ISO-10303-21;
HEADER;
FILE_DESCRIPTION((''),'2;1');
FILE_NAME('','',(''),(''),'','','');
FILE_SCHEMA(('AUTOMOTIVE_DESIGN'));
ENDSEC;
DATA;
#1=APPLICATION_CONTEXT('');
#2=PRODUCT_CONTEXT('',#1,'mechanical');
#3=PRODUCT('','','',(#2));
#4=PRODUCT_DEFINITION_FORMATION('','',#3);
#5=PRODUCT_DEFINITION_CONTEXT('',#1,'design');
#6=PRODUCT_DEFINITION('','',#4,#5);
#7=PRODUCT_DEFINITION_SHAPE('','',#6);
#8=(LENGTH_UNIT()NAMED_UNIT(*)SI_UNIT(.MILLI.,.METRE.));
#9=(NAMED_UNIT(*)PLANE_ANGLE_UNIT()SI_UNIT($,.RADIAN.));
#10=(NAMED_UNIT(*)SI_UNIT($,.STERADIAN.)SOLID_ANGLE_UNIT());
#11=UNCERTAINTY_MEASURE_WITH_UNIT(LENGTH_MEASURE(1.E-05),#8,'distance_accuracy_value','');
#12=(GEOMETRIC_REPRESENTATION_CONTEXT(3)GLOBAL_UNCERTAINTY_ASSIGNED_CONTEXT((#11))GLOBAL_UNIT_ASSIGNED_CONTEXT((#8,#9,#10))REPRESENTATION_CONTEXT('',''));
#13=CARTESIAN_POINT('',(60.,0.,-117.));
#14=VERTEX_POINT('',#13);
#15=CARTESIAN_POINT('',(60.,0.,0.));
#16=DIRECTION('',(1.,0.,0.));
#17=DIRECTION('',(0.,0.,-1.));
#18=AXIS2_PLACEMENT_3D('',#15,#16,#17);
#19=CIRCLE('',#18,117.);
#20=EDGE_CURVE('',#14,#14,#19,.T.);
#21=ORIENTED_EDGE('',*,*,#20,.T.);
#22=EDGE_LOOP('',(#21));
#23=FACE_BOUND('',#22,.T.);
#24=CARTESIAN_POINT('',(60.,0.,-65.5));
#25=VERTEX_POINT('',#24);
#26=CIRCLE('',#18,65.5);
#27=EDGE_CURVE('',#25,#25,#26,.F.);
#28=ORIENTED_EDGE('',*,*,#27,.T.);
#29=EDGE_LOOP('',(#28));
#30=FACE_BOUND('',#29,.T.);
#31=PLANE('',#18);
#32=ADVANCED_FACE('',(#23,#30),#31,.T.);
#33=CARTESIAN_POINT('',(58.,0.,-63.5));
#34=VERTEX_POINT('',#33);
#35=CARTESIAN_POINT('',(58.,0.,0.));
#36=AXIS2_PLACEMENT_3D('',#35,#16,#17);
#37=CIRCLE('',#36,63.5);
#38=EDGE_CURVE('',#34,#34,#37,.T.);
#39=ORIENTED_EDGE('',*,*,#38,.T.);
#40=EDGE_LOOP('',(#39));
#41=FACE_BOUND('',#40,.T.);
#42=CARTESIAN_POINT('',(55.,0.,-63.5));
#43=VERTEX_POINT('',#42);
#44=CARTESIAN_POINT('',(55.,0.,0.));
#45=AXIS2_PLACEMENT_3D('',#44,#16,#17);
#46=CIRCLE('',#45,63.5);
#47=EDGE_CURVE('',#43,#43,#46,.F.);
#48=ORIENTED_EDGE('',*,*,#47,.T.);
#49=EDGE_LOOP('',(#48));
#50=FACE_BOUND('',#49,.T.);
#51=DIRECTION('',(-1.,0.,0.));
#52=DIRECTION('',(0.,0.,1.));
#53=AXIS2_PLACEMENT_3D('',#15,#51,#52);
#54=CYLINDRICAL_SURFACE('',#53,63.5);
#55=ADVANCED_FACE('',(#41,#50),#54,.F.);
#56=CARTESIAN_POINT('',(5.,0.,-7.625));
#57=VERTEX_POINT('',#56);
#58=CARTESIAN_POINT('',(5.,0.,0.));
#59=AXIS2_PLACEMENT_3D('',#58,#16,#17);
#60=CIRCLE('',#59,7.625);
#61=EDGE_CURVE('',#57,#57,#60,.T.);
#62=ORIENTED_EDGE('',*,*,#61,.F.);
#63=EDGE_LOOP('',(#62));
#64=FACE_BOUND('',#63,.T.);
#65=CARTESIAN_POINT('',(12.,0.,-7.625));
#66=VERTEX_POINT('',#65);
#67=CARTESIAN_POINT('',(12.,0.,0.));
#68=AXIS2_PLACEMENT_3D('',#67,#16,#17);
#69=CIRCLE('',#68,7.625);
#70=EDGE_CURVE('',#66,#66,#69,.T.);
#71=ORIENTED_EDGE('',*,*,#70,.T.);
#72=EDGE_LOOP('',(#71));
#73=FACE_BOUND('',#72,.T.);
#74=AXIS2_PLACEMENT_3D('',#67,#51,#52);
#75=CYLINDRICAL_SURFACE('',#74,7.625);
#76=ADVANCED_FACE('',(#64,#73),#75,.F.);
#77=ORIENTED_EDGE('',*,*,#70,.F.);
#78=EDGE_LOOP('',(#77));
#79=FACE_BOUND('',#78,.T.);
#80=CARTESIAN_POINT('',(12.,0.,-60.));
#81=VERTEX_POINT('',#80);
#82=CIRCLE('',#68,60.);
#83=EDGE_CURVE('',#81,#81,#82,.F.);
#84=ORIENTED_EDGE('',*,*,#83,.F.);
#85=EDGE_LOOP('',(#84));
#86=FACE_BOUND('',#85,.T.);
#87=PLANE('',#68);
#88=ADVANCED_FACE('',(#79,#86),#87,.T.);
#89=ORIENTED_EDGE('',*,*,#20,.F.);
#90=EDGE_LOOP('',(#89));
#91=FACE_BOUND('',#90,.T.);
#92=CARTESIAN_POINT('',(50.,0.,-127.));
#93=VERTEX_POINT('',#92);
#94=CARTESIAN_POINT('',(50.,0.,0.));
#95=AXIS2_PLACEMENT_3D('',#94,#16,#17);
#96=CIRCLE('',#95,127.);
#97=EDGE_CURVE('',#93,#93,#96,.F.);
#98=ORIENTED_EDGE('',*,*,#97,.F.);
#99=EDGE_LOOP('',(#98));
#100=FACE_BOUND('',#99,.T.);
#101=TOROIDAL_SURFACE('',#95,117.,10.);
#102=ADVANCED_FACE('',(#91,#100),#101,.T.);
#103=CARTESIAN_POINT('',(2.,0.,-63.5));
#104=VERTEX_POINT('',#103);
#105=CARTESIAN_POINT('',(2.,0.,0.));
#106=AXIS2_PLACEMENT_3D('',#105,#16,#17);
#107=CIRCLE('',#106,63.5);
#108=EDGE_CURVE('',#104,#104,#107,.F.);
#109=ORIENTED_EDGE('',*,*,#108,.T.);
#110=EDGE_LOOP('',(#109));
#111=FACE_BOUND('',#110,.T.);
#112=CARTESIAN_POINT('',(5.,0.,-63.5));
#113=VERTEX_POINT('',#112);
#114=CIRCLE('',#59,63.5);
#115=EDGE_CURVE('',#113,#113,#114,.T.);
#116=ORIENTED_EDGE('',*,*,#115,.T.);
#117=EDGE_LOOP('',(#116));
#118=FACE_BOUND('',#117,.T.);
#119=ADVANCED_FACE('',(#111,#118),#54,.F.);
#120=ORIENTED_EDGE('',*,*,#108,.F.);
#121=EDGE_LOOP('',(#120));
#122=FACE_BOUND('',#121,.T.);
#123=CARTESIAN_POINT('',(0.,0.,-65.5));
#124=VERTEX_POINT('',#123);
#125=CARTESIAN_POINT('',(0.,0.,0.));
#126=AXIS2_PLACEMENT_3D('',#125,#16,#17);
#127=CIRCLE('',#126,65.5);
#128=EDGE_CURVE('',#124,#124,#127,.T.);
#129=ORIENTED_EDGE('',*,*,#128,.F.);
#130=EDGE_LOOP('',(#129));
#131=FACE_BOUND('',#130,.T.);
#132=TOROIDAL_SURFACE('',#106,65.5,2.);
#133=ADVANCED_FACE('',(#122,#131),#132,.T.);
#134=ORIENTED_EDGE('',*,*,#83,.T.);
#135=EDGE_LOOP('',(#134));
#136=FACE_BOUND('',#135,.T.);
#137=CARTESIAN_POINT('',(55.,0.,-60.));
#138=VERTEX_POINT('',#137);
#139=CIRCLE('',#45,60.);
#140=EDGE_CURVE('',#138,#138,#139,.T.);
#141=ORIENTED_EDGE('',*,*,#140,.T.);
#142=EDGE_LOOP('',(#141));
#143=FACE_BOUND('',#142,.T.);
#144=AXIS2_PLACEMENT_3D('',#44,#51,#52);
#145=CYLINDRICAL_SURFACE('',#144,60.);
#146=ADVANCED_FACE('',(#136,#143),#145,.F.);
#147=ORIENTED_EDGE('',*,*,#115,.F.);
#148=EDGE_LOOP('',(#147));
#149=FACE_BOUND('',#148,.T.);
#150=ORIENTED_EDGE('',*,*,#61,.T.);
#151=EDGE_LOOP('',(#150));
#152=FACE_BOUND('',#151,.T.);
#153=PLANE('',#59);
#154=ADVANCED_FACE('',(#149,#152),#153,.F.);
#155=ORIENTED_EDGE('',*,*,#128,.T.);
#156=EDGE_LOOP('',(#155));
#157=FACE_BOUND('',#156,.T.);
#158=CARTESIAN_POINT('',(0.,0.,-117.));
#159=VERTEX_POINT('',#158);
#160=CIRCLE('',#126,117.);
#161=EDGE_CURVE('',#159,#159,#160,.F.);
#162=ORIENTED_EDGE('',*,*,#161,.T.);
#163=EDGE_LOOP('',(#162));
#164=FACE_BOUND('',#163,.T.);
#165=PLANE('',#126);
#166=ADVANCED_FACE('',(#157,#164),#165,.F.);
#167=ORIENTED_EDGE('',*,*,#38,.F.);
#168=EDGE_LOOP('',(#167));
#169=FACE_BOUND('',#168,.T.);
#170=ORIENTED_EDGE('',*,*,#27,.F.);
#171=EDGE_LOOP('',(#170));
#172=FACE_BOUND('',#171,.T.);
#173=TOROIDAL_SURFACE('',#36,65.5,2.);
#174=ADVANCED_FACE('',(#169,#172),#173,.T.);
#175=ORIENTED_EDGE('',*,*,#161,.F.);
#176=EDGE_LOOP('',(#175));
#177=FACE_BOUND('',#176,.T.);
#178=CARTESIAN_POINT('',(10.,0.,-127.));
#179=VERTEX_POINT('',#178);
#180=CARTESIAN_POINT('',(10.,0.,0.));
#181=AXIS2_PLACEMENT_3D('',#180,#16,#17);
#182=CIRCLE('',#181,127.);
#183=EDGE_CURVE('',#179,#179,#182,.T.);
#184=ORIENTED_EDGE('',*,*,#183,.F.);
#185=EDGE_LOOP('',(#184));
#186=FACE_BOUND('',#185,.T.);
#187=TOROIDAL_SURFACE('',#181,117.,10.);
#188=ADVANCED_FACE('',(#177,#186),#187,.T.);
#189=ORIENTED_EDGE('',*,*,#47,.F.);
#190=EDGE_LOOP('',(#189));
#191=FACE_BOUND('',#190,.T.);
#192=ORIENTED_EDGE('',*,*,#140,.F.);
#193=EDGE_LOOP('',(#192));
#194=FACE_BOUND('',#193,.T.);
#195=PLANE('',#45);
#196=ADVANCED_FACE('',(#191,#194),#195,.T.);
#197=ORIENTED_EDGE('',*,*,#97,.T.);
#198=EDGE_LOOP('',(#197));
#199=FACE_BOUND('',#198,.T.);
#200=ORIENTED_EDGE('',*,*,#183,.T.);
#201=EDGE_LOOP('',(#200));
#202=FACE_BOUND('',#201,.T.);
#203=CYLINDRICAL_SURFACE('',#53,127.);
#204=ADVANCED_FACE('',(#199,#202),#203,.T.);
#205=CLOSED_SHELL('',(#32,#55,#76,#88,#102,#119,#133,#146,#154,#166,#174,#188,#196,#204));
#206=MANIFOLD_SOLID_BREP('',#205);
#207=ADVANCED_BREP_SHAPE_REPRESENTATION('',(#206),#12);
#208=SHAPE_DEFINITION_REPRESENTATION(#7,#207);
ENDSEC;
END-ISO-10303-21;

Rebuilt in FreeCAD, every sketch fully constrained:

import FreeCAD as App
import Part
import Sketcher
from FreeCAD import Vector
Q = App.Units.Quantity


def edges_at(feature, points):
    """Names of the edges that pass closest to the given points."""
    edges = feature.Shape.Edges
    near = lambda p: min(range(len(edges)), key=lambda i: edges[i].distToShape(Part.Vertex(*p))[0])
    return sorted({f"Edge{near(p) + 1}" for p in points})

doc = App.newDocument("Part")
body = doc.addObject("PartDesign::Body", "Body")

sketch1 = doc.addObject("Sketcher::SketchObject", "Sketch")
body.addObject(sketch1)
sketch1.AttachmentSupport = (doc.YZ_Plane, [""])
sketch1.MapMode = "FlatFace"
sketch1.AttachmentOffset = App.Placement(Vector(0, 0, 5), App.Rotation())
sketch1.addGeometry([
    Part.Circle(Vector(0, 0, 0), Vector(0, 0, 1), 64),
    Part.Circle(Vector(0, 0, 0), Vector(0, 0, 1), 8),
], False)
sketch1.addConstraint([
    Sketcher.Constraint("Coincident", 0, 3, -1, 1),
    Sketcher.Constraint("Coincident", 1, 3, -1, 1),
    Sketcher.Constraint("Diameter", 0, Q("127 mm")),
    Sketcher.Constraint("Diameter", 1, Q("15.25 mm")),
])
pad1 = doc.addObject("PartDesign::Pad", "Pad")
body.addObject(pad1)
pad1.Profile = sketch1
pad1.Length = 7

sketch2 = doc.addObject("Sketcher::SketchObject", "Sketch001")
body.addObject(sketch2)
sketch2.AttachmentSupport = (doc.YZ_Plane, [""])
sketch2.MapMode = "FlatFace"
sketch2.AttachmentOffset = App.Placement(Vector(0, 0, 5), App.Rotation())
sketch2.addGeometry([
    Part.Circle(Vector(0, 0, 0), Vector(0, 0, 1), 64),
    Part.Circle(Vector(0, 0, 0), Vector(0, 0, 1), 60),
], False)
sketch2.addConstraint([
    Sketcher.Constraint("Coincident", 0, 3, -1, 1),
    Sketcher.Constraint("Coincident", 1, 3, -1, 1),
    Sketcher.Constraint("Diameter", 0, Q("127 mm")),
    Sketcher.Constraint("Diameter", 1, Q("120 mm")),
])
pad2 = doc.addObject("PartDesign::Pad", "Pad001")
body.addObject(pad2)
pad2.Profile = sketch2
pad2.Length = 50

sketch3 = doc.addObject("Sketcher::SketchObject", "Sketch002")
body.addObject(sketch3)
sketch3.AttachmentSupport = (doc.YZ_Plane, [""])
sketch3.MapMode = "FlatFace"
sketch3.addGeometry([
    Part.Circle(Vector(0, 0, 0), Vector(0, 0, 1), 127),
    Part.Circle(Vector(0, 0, 0), Vector(0, 0, 1), 64),
], False)
sketch3.addConstraint([
    Sketcher.Constraint("Coincident", 0, 3, -1, 1),
    Sketcher.Constraint("Coincident", 1, 3, -1, 1),
    Sketcher.Constraint("Diameter", 0, Q("254 mm")),
    Sketcher.Constraint("Diameter", 1, Q("127 mm")),
])
pad3 = doc.addObject("PartDesign::Pad", "Pad002")
body.addObject(pad3)
pad3.Profile = sketch3
pad3.Length = 60
doc.recompute()

fillet = doc.addObject("PartDesign::Fillet", "Fillet")
body.addObject(fillet)
fillet.Base = (pad3, edges_at(pad3, [(60, 0, 127), (0, 0, 127)]))
fillet.Radius = 10
doc.recompute()

fillet2 = doc.addObject("PartDesign::Fillet", "Fillet001")
body.addObject(fillet2)
fillet2.Base = (fillet, edges_at(fillet, [(0, 0, 63.5), (60, 0, 63.5)]))
fillet2.Radius = 2

doc.recompute()
